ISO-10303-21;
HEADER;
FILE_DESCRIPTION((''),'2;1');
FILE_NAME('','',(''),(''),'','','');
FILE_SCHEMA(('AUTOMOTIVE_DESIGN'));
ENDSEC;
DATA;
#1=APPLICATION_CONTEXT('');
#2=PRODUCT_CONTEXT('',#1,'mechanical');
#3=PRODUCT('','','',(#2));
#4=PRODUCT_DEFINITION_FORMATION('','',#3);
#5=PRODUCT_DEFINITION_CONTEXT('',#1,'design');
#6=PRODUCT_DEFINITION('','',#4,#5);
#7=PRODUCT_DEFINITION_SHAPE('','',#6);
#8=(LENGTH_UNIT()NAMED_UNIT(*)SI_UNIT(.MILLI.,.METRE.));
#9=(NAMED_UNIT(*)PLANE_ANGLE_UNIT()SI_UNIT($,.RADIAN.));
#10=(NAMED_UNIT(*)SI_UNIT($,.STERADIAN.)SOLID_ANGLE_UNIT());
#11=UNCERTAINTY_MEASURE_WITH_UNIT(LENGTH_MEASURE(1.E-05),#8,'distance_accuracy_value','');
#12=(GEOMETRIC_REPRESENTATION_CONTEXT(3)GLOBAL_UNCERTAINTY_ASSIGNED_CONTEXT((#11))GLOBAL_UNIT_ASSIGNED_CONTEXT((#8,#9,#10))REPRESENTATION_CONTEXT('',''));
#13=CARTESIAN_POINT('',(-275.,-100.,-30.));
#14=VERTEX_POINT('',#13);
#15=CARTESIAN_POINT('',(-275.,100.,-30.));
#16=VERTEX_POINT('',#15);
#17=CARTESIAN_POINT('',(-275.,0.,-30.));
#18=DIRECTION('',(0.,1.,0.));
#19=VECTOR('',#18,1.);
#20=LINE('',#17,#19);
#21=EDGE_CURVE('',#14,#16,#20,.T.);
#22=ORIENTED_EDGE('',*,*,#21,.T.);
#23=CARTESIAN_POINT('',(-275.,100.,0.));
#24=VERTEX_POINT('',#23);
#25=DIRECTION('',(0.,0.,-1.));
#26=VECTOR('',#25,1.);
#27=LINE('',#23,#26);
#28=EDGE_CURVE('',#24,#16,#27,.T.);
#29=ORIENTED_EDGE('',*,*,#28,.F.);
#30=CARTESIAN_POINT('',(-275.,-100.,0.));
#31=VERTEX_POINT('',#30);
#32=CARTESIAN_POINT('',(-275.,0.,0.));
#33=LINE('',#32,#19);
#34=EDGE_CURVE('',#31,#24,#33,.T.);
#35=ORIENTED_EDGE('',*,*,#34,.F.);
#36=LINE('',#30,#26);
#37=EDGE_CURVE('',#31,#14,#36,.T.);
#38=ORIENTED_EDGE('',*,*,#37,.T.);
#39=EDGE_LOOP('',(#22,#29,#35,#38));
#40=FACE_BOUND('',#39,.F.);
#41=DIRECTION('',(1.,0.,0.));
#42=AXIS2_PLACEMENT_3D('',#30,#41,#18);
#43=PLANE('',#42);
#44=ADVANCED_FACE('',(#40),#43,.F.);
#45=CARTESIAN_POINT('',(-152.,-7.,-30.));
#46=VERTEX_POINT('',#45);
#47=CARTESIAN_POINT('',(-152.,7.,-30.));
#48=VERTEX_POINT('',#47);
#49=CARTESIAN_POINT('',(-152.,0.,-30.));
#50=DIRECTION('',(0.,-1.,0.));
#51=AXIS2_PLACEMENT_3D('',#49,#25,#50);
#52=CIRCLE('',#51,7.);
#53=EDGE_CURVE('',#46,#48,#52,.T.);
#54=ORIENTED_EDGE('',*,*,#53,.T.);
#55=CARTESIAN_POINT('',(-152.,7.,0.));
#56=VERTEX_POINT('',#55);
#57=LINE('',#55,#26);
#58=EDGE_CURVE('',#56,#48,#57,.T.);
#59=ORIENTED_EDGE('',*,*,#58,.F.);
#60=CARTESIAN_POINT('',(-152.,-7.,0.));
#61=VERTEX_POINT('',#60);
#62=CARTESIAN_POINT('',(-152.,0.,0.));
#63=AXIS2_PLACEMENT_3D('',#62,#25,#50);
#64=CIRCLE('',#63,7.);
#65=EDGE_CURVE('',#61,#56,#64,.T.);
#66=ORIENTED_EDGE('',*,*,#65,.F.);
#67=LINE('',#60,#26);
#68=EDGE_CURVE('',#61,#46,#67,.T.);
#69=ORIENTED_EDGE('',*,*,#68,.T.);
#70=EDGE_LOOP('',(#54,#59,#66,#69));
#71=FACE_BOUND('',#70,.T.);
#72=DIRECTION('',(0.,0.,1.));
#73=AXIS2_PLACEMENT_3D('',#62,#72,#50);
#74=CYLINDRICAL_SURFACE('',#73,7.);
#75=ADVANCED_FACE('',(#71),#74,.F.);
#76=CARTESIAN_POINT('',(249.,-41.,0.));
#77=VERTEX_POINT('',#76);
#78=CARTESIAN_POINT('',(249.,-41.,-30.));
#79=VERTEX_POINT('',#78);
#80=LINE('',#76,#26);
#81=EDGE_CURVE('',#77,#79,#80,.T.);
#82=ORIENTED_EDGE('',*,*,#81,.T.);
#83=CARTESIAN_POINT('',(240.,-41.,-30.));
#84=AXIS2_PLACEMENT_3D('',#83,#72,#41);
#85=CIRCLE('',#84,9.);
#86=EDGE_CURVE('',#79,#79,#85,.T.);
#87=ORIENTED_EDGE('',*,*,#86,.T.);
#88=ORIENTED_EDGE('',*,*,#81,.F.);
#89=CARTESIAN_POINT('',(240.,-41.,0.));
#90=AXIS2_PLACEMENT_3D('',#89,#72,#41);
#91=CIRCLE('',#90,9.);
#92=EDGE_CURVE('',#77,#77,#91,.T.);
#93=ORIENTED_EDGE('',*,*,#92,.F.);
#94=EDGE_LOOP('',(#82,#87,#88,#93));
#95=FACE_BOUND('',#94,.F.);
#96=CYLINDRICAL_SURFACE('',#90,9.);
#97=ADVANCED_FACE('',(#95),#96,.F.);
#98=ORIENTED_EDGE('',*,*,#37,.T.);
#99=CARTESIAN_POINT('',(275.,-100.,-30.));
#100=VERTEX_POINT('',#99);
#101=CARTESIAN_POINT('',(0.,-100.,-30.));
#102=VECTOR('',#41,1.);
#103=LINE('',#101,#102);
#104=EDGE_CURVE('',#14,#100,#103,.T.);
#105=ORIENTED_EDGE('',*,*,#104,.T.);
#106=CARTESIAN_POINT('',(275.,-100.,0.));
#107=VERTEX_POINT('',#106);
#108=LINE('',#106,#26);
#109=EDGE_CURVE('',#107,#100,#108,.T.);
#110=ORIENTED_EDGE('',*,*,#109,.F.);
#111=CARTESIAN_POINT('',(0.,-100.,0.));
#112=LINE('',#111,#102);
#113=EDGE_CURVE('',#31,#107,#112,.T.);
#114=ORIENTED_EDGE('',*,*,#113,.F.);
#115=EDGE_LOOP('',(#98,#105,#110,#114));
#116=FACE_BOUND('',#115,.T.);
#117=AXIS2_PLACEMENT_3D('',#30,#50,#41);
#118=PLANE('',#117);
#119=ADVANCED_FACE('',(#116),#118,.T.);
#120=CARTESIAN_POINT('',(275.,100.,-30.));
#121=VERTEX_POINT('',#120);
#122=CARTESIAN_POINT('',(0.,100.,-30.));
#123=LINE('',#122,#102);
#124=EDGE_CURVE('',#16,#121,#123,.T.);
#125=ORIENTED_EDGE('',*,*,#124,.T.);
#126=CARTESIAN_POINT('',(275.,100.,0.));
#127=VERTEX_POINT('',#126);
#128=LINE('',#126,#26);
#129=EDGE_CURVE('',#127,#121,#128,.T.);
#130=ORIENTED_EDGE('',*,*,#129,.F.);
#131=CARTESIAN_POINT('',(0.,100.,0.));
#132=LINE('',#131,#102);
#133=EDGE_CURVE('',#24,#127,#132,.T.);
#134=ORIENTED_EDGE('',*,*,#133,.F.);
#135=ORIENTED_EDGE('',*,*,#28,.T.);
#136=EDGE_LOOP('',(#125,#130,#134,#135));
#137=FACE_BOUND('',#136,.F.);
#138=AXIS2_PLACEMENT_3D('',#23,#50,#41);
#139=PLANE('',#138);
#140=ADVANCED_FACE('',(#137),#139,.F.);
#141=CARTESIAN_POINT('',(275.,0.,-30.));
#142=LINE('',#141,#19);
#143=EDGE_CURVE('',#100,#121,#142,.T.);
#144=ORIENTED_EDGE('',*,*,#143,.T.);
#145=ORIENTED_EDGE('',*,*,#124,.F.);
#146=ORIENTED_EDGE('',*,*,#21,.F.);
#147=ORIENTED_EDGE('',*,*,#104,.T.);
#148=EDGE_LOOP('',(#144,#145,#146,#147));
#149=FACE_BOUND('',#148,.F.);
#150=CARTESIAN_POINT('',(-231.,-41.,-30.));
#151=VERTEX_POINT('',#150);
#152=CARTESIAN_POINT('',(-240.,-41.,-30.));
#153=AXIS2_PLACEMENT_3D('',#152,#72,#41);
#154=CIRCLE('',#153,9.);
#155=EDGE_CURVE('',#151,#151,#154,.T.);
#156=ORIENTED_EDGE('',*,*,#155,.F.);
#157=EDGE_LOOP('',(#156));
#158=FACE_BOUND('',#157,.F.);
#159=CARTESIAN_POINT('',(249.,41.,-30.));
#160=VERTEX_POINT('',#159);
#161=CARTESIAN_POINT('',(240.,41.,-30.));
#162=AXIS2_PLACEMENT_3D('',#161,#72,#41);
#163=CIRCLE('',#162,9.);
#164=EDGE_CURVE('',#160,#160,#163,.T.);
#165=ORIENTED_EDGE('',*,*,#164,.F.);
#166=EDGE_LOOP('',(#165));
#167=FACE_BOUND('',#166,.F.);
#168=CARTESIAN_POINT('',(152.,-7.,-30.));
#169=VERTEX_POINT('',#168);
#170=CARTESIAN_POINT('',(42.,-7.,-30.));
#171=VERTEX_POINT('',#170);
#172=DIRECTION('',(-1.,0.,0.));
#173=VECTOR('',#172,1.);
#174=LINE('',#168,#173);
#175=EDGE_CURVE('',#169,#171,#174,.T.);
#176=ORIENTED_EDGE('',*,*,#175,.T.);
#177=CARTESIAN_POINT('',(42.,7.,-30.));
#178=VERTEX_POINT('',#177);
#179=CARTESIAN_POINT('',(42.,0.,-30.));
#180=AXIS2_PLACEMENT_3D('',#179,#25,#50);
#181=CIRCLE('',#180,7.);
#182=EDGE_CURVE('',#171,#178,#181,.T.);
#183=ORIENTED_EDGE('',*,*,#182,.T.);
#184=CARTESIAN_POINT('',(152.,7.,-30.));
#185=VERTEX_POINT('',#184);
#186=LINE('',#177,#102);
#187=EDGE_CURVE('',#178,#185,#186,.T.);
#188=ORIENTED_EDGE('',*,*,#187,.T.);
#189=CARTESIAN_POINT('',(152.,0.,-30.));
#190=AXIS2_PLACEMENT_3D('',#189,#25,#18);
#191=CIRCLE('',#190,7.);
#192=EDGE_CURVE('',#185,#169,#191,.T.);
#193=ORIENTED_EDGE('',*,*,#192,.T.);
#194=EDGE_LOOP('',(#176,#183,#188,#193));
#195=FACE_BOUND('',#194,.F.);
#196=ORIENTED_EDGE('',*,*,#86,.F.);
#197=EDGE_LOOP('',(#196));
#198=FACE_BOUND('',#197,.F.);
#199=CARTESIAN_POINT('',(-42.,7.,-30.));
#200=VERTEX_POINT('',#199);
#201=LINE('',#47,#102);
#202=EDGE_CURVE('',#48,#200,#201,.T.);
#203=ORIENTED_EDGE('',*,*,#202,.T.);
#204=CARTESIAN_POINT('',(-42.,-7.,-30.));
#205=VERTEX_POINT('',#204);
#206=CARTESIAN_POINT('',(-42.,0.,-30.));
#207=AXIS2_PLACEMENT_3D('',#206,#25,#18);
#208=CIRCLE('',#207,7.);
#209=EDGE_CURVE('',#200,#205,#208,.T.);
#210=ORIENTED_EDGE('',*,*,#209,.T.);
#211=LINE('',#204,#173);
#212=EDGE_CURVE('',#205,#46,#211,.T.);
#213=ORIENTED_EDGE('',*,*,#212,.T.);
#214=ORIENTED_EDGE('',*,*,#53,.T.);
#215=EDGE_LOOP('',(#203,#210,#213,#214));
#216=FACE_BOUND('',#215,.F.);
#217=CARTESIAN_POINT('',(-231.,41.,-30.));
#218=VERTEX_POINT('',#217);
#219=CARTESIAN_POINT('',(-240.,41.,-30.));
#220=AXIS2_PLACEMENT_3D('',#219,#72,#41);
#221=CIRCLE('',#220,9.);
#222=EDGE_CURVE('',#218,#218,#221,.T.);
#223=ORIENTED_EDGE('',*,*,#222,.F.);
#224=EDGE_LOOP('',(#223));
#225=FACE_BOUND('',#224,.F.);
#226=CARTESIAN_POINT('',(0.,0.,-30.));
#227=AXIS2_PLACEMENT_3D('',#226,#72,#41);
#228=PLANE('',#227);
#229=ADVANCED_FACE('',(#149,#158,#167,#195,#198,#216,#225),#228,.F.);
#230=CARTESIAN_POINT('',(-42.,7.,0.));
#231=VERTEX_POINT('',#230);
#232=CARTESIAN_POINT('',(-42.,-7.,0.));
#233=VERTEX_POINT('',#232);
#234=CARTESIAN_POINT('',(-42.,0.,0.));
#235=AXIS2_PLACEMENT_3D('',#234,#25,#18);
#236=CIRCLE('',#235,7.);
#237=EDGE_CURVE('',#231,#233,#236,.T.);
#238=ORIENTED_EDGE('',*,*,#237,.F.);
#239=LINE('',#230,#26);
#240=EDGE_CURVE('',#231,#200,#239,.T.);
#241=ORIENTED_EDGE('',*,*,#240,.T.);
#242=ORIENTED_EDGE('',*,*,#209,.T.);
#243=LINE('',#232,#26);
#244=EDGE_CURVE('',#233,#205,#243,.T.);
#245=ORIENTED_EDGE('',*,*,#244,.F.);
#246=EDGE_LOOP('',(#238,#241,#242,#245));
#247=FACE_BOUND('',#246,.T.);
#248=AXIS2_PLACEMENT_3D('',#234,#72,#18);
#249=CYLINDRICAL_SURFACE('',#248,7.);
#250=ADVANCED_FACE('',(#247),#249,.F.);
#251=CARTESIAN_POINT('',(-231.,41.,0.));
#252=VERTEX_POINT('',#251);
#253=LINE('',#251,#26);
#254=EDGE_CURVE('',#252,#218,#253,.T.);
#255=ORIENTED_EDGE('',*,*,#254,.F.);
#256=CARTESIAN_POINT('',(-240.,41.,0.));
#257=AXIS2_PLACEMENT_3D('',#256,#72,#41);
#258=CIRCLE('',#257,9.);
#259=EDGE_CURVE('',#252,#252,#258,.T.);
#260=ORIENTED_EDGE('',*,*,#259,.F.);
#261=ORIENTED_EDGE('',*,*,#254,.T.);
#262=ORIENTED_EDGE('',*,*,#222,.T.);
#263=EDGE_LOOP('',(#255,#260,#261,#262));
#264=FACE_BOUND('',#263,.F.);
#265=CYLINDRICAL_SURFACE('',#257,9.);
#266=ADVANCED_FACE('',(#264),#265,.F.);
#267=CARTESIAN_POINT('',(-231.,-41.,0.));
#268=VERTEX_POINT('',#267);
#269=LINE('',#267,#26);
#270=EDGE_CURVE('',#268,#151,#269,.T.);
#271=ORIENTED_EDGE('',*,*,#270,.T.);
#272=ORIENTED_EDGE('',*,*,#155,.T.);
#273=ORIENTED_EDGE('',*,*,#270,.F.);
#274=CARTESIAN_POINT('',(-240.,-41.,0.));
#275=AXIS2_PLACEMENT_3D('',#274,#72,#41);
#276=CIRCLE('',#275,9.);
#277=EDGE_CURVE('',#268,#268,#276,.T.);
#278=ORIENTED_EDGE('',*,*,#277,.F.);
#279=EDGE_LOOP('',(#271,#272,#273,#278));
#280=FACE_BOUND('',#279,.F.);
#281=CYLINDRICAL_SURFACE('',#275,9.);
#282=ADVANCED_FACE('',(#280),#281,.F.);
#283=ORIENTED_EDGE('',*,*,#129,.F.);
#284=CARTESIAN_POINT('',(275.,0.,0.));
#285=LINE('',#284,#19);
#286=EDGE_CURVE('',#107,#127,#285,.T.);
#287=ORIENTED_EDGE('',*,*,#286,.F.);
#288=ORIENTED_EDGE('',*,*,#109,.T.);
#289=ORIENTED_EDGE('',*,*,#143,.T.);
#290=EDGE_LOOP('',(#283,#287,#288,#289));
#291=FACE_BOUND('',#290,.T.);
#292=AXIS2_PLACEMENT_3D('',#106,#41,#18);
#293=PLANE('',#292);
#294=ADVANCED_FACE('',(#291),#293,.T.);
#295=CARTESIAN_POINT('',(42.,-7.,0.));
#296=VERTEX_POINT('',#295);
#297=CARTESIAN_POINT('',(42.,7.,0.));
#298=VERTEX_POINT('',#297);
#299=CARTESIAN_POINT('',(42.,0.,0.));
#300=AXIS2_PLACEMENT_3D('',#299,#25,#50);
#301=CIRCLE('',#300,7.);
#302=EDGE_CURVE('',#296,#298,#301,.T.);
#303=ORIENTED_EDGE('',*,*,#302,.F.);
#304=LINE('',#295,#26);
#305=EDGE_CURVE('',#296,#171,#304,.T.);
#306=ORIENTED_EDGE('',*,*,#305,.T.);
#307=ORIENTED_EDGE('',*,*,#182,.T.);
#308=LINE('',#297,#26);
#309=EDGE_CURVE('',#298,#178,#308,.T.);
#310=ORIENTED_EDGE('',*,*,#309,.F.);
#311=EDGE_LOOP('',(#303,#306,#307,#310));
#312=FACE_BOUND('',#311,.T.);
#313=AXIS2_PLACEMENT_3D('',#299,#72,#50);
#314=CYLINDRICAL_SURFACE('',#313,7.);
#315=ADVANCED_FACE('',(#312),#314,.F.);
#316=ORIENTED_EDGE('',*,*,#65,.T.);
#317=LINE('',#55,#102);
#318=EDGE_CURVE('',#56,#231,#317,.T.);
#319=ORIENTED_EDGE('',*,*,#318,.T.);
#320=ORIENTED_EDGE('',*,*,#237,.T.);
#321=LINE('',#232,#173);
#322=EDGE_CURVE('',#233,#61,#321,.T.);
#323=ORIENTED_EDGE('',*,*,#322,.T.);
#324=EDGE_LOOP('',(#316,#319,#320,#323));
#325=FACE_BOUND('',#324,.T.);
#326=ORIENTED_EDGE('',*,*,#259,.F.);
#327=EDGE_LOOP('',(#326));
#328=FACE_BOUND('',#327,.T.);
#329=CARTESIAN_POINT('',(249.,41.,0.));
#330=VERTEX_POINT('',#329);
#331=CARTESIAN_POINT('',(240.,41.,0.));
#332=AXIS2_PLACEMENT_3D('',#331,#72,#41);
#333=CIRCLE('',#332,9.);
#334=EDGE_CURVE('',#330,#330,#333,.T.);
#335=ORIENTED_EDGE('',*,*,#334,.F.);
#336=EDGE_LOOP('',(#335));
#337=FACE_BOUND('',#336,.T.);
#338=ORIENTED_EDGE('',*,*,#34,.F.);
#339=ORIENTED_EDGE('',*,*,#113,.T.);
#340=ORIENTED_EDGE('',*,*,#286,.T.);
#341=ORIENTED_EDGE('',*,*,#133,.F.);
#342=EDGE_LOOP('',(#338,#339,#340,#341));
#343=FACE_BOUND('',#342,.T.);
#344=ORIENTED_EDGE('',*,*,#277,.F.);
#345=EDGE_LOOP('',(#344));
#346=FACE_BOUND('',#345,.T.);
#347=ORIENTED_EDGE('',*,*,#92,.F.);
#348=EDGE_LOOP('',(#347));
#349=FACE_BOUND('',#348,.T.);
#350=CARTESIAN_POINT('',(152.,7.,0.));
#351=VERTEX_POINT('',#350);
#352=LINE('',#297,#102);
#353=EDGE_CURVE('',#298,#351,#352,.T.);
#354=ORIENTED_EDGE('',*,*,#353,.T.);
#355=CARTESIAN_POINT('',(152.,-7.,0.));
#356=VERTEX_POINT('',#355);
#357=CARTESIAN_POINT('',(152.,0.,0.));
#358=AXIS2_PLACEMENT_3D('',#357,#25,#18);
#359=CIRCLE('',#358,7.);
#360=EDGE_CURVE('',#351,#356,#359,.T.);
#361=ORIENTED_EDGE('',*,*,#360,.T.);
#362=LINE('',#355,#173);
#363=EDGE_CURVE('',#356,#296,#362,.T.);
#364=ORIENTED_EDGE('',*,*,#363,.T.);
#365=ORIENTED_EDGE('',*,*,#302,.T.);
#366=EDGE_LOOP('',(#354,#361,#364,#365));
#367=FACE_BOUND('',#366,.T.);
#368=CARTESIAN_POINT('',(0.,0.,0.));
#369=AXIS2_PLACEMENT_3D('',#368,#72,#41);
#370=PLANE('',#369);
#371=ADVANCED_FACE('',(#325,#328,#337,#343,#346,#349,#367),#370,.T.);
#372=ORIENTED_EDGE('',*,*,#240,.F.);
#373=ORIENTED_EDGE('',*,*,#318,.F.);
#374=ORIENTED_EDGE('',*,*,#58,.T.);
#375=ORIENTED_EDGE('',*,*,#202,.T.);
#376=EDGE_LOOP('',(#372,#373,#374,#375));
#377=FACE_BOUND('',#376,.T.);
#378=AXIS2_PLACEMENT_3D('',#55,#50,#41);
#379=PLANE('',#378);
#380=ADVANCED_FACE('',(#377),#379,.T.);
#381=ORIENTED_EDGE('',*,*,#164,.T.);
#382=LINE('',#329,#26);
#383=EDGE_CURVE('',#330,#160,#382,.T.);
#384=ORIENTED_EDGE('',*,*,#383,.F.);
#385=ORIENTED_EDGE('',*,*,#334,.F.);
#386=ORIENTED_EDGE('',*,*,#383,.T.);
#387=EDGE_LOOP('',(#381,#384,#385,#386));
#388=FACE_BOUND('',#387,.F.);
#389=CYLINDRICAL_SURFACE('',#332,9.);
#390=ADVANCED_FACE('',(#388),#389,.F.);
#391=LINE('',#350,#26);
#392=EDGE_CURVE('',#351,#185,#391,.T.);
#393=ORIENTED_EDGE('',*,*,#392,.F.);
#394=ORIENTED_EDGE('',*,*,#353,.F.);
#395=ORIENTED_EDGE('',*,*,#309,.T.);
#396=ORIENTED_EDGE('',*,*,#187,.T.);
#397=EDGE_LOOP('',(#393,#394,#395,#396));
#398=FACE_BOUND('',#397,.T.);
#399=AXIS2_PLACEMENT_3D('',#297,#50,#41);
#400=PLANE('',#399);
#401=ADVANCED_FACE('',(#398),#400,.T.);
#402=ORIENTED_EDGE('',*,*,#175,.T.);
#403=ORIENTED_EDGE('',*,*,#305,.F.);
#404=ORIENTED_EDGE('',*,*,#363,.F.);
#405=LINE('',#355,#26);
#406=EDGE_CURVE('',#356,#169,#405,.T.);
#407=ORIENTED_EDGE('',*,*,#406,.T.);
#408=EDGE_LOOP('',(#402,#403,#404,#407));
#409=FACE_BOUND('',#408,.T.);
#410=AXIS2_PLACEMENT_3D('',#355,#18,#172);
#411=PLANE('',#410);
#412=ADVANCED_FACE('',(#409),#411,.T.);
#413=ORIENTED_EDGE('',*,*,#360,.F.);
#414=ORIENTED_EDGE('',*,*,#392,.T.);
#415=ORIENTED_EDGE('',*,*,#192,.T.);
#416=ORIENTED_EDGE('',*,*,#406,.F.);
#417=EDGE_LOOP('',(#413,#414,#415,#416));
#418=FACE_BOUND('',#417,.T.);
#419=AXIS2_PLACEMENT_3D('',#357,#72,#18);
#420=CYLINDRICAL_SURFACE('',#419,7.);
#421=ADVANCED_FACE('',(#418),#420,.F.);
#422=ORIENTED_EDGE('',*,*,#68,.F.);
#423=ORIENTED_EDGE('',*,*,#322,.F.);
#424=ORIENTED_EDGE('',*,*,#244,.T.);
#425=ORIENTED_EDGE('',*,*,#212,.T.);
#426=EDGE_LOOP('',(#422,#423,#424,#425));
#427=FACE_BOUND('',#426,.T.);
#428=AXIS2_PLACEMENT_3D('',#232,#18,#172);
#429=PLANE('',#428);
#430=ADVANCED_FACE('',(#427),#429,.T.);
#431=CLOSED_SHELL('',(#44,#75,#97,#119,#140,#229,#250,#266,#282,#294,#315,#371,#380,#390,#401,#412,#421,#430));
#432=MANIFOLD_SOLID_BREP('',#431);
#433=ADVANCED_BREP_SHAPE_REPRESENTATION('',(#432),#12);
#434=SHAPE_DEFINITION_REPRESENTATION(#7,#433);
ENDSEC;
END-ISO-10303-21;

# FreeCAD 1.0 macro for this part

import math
import FreeCAD as App
import Part
import Sketcher
from FreeCAD import Vector
Q = App.Units.Quantity


def add_polygon(sketch, points):
    """Adds a closed chain of lines whose ends are joined by coincident constraints."""
    first, n = sketch.GeometryCount, len(points)
    for a, b in zip(points, points[1:] + points[:1]):
        sketch.addGeometry(Part.LineSegment(App.Vector(*a, 0), App.Vector(*b, 0)), False)
    for i in range(n):
        sketch.addConstraint(Sketcher.Constraint("Coincident", first + i, 2, first + (i + 1) % n, 1))

doc = App.newDocument("Part")
body = doc.addObject("PartDesign::Body", "Body")

# Sketch on XY plane
sketch1 = doc.addObject("Sketcher::SketchObject", "Sketch")
body.addObject(sketch1)
sketch1.AttachmentSupport = (doc.XY_Plane, [""])
sketch1.MapMode = "FlatFace"
add_polygon(sketch1, [(-275, 100), (-275, -100), (275, -100), (275, 100)])  # lines 0-3
sketch1.addGeometry(Part.Circle(Vector(-240, -41, 0), Vector(0, 0, 1), 9), False)  # 4
sketch1.addGeometry(Part.Circle(Vector(240, -41, 0), Vector(0, 0, 1), 9), False)  # 5
sketch1.addGeometry(Part.LineSegment(Vector(-152, 7, 0), Vector(-42, 7, 0)), False)  # 6
sketch1.addGeometry(Part.ArcOfCircle(Part.Circle(Vector(-42, 0, 0), Vector(0, 0, 1), 7), math.radians(-90), math.radians(90)), False)  # 7
sketch1.addGeometry(Part.LineSegment(Vector(-42, -7, 0), Vector(-152, -7, 0)), False)  # 8
sketch1.addGeometry(Part.ArcOfCircle(Part.Circle(Vector(-152, 0, 0), Vector(0, 0, 1), 7), math.radians(90), math.radians(270)), False)  # 9
sketch1.addGeometry(Part.Circle(Vector(-240, 41, 0), Vector(0, 0, 1), 9), False)  # 10
sketch1.addGeometry(Part.LineSegment(Vector(152, -7, 0), Vector(42, -7, 0)), False)  # 11
sketch1.addGeometry(Part.ArcOfCircle(Part.Circle(Vector(42, 0, 0), Vector(0, 0, 1), 7), math.radians(90), math.radians(270)), False)  # 12
sketch1.addGeometry(Part.LineSegment(Vector(42, 7, 0), Vector(152, 7, 0)), False)  # 13
sketch1.addGeometry(Part.ArcOfCircle(Part.Circle(Vector(152, 0, 0), Vector(0, 0, 1), 7), math.radians(-90), math.radians(90)), False)  # 14
sketch1.addGeometry(Part.Circle(Vector(240, 41, 0), Vector(0, 0, 1), 9), False)  # 15
sketch1.addConstraint([
    Sketcher.Constraint("Tangent", 6, 2, 7, 2),
    Sketcher.Constraint("Tangent", 7, 1, 8, 1),
    Sketcher.Constraint("Tangent", 8, 2, 9, 2),
    Sketcher.Constraint("Tangent", 9, 1, 6, 1),
    Sketcher.Constraint("Tangent", 11, 2, 12, 2),
    Sketcher.Constraint("Tangent", 12, 1, 13, 1),
    Sketcher.Constraint("Tangent", 13, 2, 14, 2),
    Sketcher.Constraint("Tangent", 14, 1, 11, 1),
    Sketcher.Constraint("Vertical", 0),
    Sketcher.Constraint("Horizontal", 1),
    Sketcher.Constraint("Vertical", 2),
    Sketcher.Constraint("Horizontal", 3),
    Sketcher.Constraint("Horizontal", 6),
    Sketcher.Constraint("Horizontal", 8),
    Sketcher.Constraint("Horizontal", 11),
    Sketcher.Constraint("Horizontal", 13),
    Sketcher.Constraint("Equal", 4, 5),
    Sketcher.Constraint("Equal", 5, 10),
    Sketcher.Constraint("Equal", 9, 12),
    Sketcher.Constraint("Equal", 10, 15),
    Sketcher.Constraint("Symmetric", 5, 3, 10, 3, -1, 1),
    Sketcher.Constraint("Symmetric", 7, 3, 12, 3, -1, 1),
    Sketcher.Constraint("Symmetric", 4, 3, 15, 3, -1, 1),
    Sketcher.Constraint("Symmetric", 0, 2, 2, 2, -1, 1),
    Sketcher.Constraint("Symmetric", 4, 3, 5, 3, -2),
    Sketcher.Constraint("Symmetric", 9, 3, 14, 3, -2),
    Sketcher.Constraint("Diameter", 4, Q("18 mm")),
    Sketcher.Constraint("Radius", 7, Q("7 mm")),
    Sketcher.Constraint("DistanceX", 1, 1, 1, 2, Q("550 mm")),
    Sketcher.Constraint("DistanceX", 6, 1, 6, 2, Q("110 mm")),
    Sketcher.Constraint("DistanceY", 0, 2, 0, 1, Q("200 mm")),
    Sketcher.Constraint("DistanceX", 4, 3, -1, 1, Q("240 mm")),
    Sketcher.Constraint("DistanceY", 4, 3, -1, 1, Q("41 mm")),
    Sketcher.Constraint("DistanceX", 7, 3, -1, 1, Q("42 mm")),
])
pad1 = doc.addObject("PartDesign::Pad", "Pad")
body.addObject(pad1)
pad1.Profile = sketch1
pad1.Length = 30
pad1.Reversed = True

doc.recompute()
